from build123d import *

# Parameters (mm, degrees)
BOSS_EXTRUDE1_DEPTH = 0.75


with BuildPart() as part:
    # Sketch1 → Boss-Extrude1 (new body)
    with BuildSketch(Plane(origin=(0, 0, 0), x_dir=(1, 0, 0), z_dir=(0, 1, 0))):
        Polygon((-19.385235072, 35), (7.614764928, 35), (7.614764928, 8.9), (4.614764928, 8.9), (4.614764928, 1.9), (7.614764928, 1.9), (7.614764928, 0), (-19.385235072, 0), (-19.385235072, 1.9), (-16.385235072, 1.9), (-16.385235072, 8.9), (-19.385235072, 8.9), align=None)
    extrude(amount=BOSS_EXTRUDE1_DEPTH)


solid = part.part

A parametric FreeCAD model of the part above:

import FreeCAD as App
import Part
import Sketcher

V = App.Vector

doc = App.newDocument("Part")
body = doc.addObject("PartDesign::Body", "Body")

sketch1 = doc.addObject("Sketcher::SketchObject", "Sketch")
body.addObject(sketch1)
sketch1.AttachmentSupport = (doc.XZ_Plane, [""])
sketch1.MapMode = "FlatFace"
sketch1.addGeometry([
    Part.LineSegment(V(7.6, -35, 0), V(-19.4, -35, 0)),
    Part.LineSegment(V(-19.4, -35, 0), V(-19.4, -8.9, 0)),
    Part.LineSegment(V(-19.4, -8.9, 0), V(-16.4, -8.9, 0)),
    Part.LineSegment(V(-16.4, -8.9, 0), V(-16.4, -1.9, 0)),
    Part.LineSegment(V(-16.4, -1.9, 0), V(-19.4, -1.9, 0)),
    Part.LineSegment(V(-19.4, -1.9, 0), V(-19.4, 0, 0)),
    Part.LineSegment(V(-19.4, 0, 0), V(7.6, 0, 0)),
    Part.LineSegment(V(7.6, 0, 0), V(7.6, -1.9, 0)),
    Part.LineSegment(V(7.6, -1.9, 0), V(4.6, -1.9, 0)),
    Part.LineSegment(V(4.6, -1.9, 0), V(4.6, -8.9, 0)),
    Part.LineSegment(V(4.6, -8.9, 0), V(7.6, -8.9, 0)),
    Part.LineSegment(V(7.6, -8.9, 0), V(7.6, -35, 0)),
], False)
sketch1.addConstraint([
    Sketcher.Constraint("Coincident", 0, 2, 1, 1),
    Sketcher.Constraint("Coincident", 1, 2, 2, 1),
    Sketcher.Constraint("Coincident", 2, 2, 3, 1),
    Sketcher.Constraint("Coincident", 3, 2, 4, 1),
    Sketcher.Constraint("Coincident", 4, 2, 5, 1),
    Sketcher.Constraint("Coincident", 5, 2, 6, 1),
    Sketcher.Constraint("Coincident", 6, 2, 7, 1),
    Sketcher.Constraint("Coincident", 7, 2, 8, 1),
    Sketcher.Constraint("Coincident", 8, 2, 9, 1),
    Sketcher.Constraint("Coincident", 9, 2, 10, 1),
    Sketcher.Constraint("Coincident", 10, 2, 11, 1),
    Sketcher.Constraint("Coincident", 11, 2, 0, 1),
    Sketcher.Constraint("Horizontal", 0),
    Sketcher.Constraint("Vertical", 1),
    Sketcher.Constraint("Horizontal", 2),
    Sketcher.Constraint("Vertical", 3),
    Sketcher.Constraint("Horizontal", 4),
    Sketcher.Constraint("Vertical", 5),
    Sketcher.Constraint("Horizontal", 6),
    Sketcher.Constraint("Vertical", 7),
    Sketcher.Constraint("Horizontal", 8),
    Sketcher.Constraint("Vertical", 9),
    Sketcher.Constraint("Horizontal", 10),
    Sketcher.Constraint("Vertical", 11),
    Sketcher.Constraint("PointOnObject", 5, 2, -1),
    Sketcher.Constraint("Horizontal", 4, 2, 7, 2),
    Sketcher.Constraint("Horizontal", 2, 2, 9, 2),
    Sketcher.Constraint("Vertical", 1, 2, 4, 2),
    Sketcher.Constraint("Vertical", 7, 2, 10, 2),
    Sketcher.Constraint("Equal", 4, 8),
    Sketcher.Constraint("DistanceX", 0, 2, 0, 1, 27.0),
    Sketcher.Constraint("DistanceX", 2, 1, 2, 2, 3.0),
    Sketcher.Constraint("DistanceY", 3, 1, 3, 2, 7.0),
    Sketcher.Constraint("DistanceY", 1, 1, 1, 2, 26.1),
    Sketcher.Constraint("DistanceY", 5, 1, 5, 2, 1.9),
    Sketcher.Constraint("DistanceX", 0, 2, -1, 1, 19.385235),
])
pad1 = doc.addObject("PartDesign::Pad", "Pad")
body.addObject(pad1)
pad1.Profile = sketch1
pad1.Length = 0.75
pad1.Reversed = True

doc.recompute()
